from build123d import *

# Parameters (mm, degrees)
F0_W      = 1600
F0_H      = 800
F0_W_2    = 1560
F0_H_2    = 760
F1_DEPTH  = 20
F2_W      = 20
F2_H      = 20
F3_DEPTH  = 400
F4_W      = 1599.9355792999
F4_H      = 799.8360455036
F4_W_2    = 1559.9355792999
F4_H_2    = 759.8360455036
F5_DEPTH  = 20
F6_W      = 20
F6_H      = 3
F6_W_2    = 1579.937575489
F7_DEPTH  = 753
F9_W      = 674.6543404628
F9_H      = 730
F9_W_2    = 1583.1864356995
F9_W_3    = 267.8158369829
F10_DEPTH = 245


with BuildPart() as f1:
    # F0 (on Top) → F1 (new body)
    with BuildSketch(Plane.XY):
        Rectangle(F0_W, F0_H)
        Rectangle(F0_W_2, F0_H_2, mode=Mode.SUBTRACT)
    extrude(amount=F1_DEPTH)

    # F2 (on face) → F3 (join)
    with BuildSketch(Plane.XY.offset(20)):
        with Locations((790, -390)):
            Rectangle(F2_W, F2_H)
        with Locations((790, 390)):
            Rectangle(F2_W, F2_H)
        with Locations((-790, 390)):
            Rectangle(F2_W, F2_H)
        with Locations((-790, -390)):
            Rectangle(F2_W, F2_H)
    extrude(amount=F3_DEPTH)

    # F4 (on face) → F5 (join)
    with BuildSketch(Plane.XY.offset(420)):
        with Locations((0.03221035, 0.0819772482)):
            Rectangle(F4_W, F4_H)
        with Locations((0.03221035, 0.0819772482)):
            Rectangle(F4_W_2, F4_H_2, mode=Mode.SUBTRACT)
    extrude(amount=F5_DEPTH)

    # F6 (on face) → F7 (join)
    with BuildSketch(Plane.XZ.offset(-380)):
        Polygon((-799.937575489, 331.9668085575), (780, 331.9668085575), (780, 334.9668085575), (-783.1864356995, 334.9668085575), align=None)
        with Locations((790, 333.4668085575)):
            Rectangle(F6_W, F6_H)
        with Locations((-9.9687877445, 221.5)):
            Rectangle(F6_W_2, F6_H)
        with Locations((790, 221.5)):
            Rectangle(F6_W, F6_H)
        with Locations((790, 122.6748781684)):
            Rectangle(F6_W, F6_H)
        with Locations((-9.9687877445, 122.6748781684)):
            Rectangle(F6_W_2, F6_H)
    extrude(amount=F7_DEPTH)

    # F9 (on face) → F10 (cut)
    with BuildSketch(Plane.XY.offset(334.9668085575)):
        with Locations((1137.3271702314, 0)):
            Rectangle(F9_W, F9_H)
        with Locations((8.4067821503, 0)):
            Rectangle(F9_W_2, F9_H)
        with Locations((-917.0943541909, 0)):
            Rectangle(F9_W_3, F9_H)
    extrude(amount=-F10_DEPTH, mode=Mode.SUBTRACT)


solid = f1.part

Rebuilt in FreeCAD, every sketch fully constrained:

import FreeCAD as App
import Part
import Sketcher
from FreeCAD import Vector
Q = App.Units.Quantity

doc = App.newDocument("Part")
params = doc.addObject("Spreadsheet::Sheet", "Params")
for row, (alias, value) in enumerate([
    ("sketch1_width", "1600 mm"),
    ("sketch1_width2", "1560 mm"),
    ("sketch1_height", "800 mm"),
    ("sketch1_height2", "760 mm"),
    ("pad1_length", "20 mm"),
    ("sketch2_width", "20 mm"),
    ("pad2_length", "400 mm"),
    ("pad3_length", "20 mm"),
    ("sketch4_height", "3 mm"),
    ("pad4_length", "753 mm"),
    ("sketch5_height", "730 mm"),
    ("pocket1_length", "245 mm"),
], start=1):
    params.set(f"A{row}", alias)
    params.set(f"B{row}", "=" + value)
    params.setAlias(f"B{row}", alias)

body = doc.addObject("PartDesign::Body", "Body")
body.AllowCompound = True

sketch1 = body.newObject("Sketcher::SketchObject", "Sketch")
sketch1.AttachmentSupport = (doc.getObject("XY_Plane"), [""])
sketch1.MapMode = "FlatFace"
sketch1.addGeometry([
    Part.LineSegment(Vector(-800, 400, 0), Vector(-800, -400, 0)),
    Part.LineSegment(Vector(-800, -400, 0), Vector(800, -400, 0)),
    Part.LineSegment(Vector(800, -400, 0), Vector(800, 400, 0)),
    Part.LineSegment(Vector(800, 400, 0), Vector(-800, 400, 0)),
    Part.LineSegment(Vector(780, -380, 0), Vector(-780, -380, 0)),
    Part.LineSegment(Vector(-780, -380, 0), Vector(-780, 380, 0)),
    Part.LineSegment(Vector(-780, 380, 0), Vector(780, 380, 0)),
    Part.LineSegment(Vector(780, 380, 0), Vector(780, -380, 0)),
], False)
sketch1.addConstraint([
    Sketcher.Constraint("Coincident", 0, 2, 1, 1),
    Sketcher.Constraint("Coincident", 1, 2, 2, 1),
    Sketcher.Constraint("Coincident", 2, 2, 3, 1),
    Sketcher.Constraint("Coincident", 3, 2, 0, 1),
    Sketcher.Constraint("Coincident", 4, 2, 5, 1),
    Sketcher.Constraint("Coincident", 5, 2, 6, 1),
    Sketcher.Constraint("Coincident", 6, 2, 7, 1),
    Sketcher.Constraint("Coincident", 7, 2, 4, 1),
    Sketcher.Constraint("Vertical", 0),
    Sketcher.Constraint("Horizontal", 1),
    Sketcher.Constraint("Vertical", 2),
    Sketcher.Constraint("Horizontal", 3),
    Sketcher.Constraint("Horizontal", 4),
    Sketcher.Constraint("Vertical", 5),
    Sketcher.Constraint("Horizontal", 6),
    Sketcher.Constraint("Vertical", 7),
    Sketcher.Constraint("Symmetric", 0, 2, 2, 2, -1, 1),
    Sketcher.Constraint("Symmetric", 4, 2, 6, 2, -1, 1),
    Sketcher.Constraint("DistanceX", 1, 1, 1, 2, Q("1600 mm")),
    Sketcher.Constraint("DistanceX", 4, 2, 4, 1, Q("1560 mm")),
    Sketcher.Constraint("DistanceY", 0, 2, 0, 1, Q("800 mm")),
    Sketcher.Constraint("DistanceY", 5, 1, 5, 2, Q("760 mm")),
])
sketch1.setExpression("Constraints[18]", "Params.sketch1_width")
sketch1.setExpression("Constraints[19]", "Params.sketch1_width2")
sketch1.setExpression("Constraints[20]", "Params.sketch1_height")
sketch1.setExpression("Constraints[21]", "Params.sketch1_height2")
pad1 = body.newObject("PartDesign::Pad", "Pad")
pad1.Profile = sketch1
pad1.setExpression("Length", "Params.pad1_length")

sketch2 = body.newObject("Sketcher::SketchObject", "Sketch001")
sketch2.AttachmentSupport = (doc.getObject("XY_Plane"), [""])
sketch2.MapMode = "FlatFace"
sketch2.AttachmentOffset = App.Placement(Vector(0, 0, 20), App.Rotation())
sketch2.addGeometry([
    Part.LineSegment(Vector(780, -380, 0), Vector(780, -400, 0)),
    Part.LineSegment(Vector(780, -400, 0), Vector(800, -400, 0)),
    Part.LineSegment(Vector(800, -400, 0), Vector(800, -380, 0)),
    Part.LineSegment(Vector(800, -380, 0), Vector(780, -380, 0)),
    Part.LineSegment(Vector(780, 400, 0), Vector(780, 380, 0)),
    Part.LineSegment(Vector(780, 380, 0), Vector(800, 380, 0)),
    Part.LineSegment(Vector(800, 380, 0), Vector(800, 400, 0)),
    Part.LineSegment(Vector(800, 400, 0), Vector(780, 400, 0)),
    Part.LineSegment(Vector(-800, 400, 0), Vector(-800, 380, 0)),
    Part.LineSegment(Vector(-800, 380, 0), Vector(-780, 380, 0)),
    Part.LineSegment(Vector(-780, 380, 0), Vector(-780, 400, 0)),
    Part.LineSegment(Vector(-780, 400, 0), Vector(-800, 400, 0)),
    Part.LineSegment(Vector(-800, -380, 0), Vector(-800, -400, 0)),
    Part.LineSegment(Vector(-800, -400, 0), Vector(-780, -400, 0)),
    Part.LineSegment(Vector(-780, -400, 0), Vector(-780, -380, 0)),
    Part.LineSegment(Vector(-780, -380, 0), Vector(-800, -380, 0)),
], False)
sketch2.addConstraint([
    Sketcher.Constraint("Coincident", 0, 2, 1, 1),
    Sketcher.Constraint("Coincident", 1, 2, 2, 1),
    Sketcher.Constraint("Coincident", 2, 2, 3, 1),
    Sketcher.Constraint("Coincident", 3, 2, 0, 1),
    Sketcher.Constraint("Coincident", 4, 2, 5, 1),
    Sketcher.Constraint("Coincident", 5, 2, 6, 1),
    Sketcher.Constraint("Coincident", 6, 2, 7, 1),
    Sketcher.Constraint("Coincident", 7, 2, 4, 1),
    Sketcher.Constraint("Coincident", 8, 2, 9, 1),
    Sketcher.Constraint("Coincident", 9, 2, 10, 1),
    Sketcher.Constraint("Coincident", 10, 2, 11, 1),
    Sketcher.Constraint("Coincident", 11, 2, 8, 1),
    Sketcher.Constraint("Coincident", 12, 2, 13, 1),
    Sketcher.Constraint("Coincident", 13, 2, 14, 1),
    Sketcher.Constraint("Coincident", 14, 2, 15, 1),
    Sketcher.Constraint("Coincident", 15, 2, 12, 1),
    Sketcher.Constraint("Vertical", 0),
    Sketcher.Constraint("Horizontal", 1),
    Sketcher.Constraint("Vertical", 2),
    Sketcher.Constraint("Horizontal", 3),
    Sketcher.Constraint("Vertical", 4),
    Sketcher.Constraint("Horizontal", 5),
    Sketcher.Constraint("Vertical", 6),
    Sketcher.Constraint("Horizontal", 7),
    Sketcher.Constraint("Vertical", 8),
    Sketcher.Constraint("Horizontal", 9),
    Sketcher.Constraint("Vertical", 10),
    Sketcher.Constraint("Horizontal", 11),
    Sketcher.Constraint("Vertical", 12),
    Sketcher.Constraint("Horizontal", 13),
    Sketcher.Constraint("Vertical", 14),
    Sketcher.Constraint("Horizontal", 15),
    Sketcher.Constraint("Symmetric", 2, 2, 8, 2, -1, 1),
    Sketcher.Constraint("Symmetric", 0, 2, 10, 2, -1, 1),
    Sketcher.Constraint("Symmetric", 6, 2, 12, 2, -1, 1),
    Sketcher.Constraint("Symmetric", 4, 2, 14, 2, -1, 1),
    Sketcher.Constraint("Symmetric", 5, 2, 8, 2, -2),
    Sketcher.Constraint("Symmetric", 7, 2, 10, 2, -2),
    Sketcher.Constraint("Equal", 15, 0),
    Sketcher.Constraint("DistanceX", 1, 1, 1, 2, Q("20 mm")),
    Sketcher.Constraint("DistanceX", -1, 1, 0, 2, Q("780 mm")),
    Sketcher.Constraint("DistanceY", 0, 2, -1, 1, Q("400 mm")),
])
sketch2.setExpression("Constraints[39]", "Params.sketch2_width")
pad2 = body.newObject("PartDesign::Pad", "Pad001")
pad2.Profile = sketch2
pad2.setExpression("Length", "Params.pad2_length")

sketch3 = body.newObject("Sketcher::SketchObject", "Sketch002")
sketch3.AttachmentSupport = (doc.getObject("XY_Plane"), [""])
sketch3.MapMode = "FlatFace"
sketch3.AttachmentOffset = App.Placement(Vector(0, 0, 420), App.Rotation())
sketch3.addGeometry([
    Part.LineSegment(Vector(-800, 400, 0), Vector(-800, -400, 0)),
    Part.LineSegment(Vector(-800, -400, 0), Vector(800, -400, 0)),
    Part.LineSegment(Vector(800, -400, 0), Vector(800, 400, 0)),
    Part.LineSegment(Vector(800, 400, 0), Vector(-800, 400, 0)),
    Part.LineSegment(Vector(780, -380, 0), Vector(-780, -380, 0)),
    Part.LineSegment(Vector(-780, -380, 0), Vector(-780, 380, 0)),
    Part.LineSegment(Vector(-780, 380, 0), Vector(780, 380, 0)),
    Part.LineSegment(Vector(780, 380, 0), Vector(780, -380, 0)),
], False)
sketch3.addConstraint([
    Sketcher.Constraint("Coincident", 0, 2, 1, 1),
    Sketcher.Constraint("Coincident", 1, 2, 2, 1),
    Sketcher.Constraint("Coincident", 2, 2, 3, 1),
    Sketcher.Constraint("Coincident", 3, 2, 0, 1),
    Sketcher.Constraint("Coincident", 4, 2, 5, 1),
    Sketcher.Constraint("Coincident", 5, 2, 6, 1),
    Sketcher.Constraint("Coincident", 6, 2, 7, 1),
    Sketcher.Constraint("Coincident", 7, 2, 4, 1),
    Sketcher.Constraint("Vertical", 0),
    Sketcher.Constraint("Horizontal", 1),
    Sketcher.Constraint("Vertical", 2),
    Sketcher.Constraint("Horizontal", 3),
    Sketcher.Constraint("Horizontal", 4),
    Sketcher.Constraint("Vertical", 5),
    Sketcher.Constraint("Horizontal", 6),
    Sketcher.Constraint("Vertical", 7),
    Sketcher.Constraint("DistanceX", -1, 1, 1, 2, Q("800 mm")),
    Sketcher.Constraint("DistanceY", -1, 1, 2, 2, Q("400 mm")),
    Sketcher.Constraint("DistanceY", -1, 1, 5, 2, Q("380 mm")),
    Sketcher.Constraint("DistanceX", -1, 1, 6, 2, Q("780 mm")),
    Sketcher.Constraint("DistanceX", 0, 2, 4, 2, Q("20 mm")),
    Sketcher.Constraint("DistanceY", 0, 2, 4, 2, Q("20 mm")),
    Sketcher.Constraint("DistanceX", 1, 1, 1, 2, Q("1599.935579 mm")),
    Sketcher.Constraint("DistanceY", 0, 2, 0, 1, Q("799.836046 mm")),
])
pad3 = body.newObject("PartDesign::Pad", "Pad002")
pad3.Profile = sketch3
pad3.setExpression("Length", "Params.pad3_length")

sketch4 = body.newObject("Sketcher::SketchObject", "Sketch003")
sketch4.AttachmentSupport = (doc.getObject("XZ_Plane"), [""])
sketch4.MapMode = "FlatFace"
sketch4.AttachmentOffset = App.Placement(Vector(0, 0, -380), App.Rotation())
sketch4.addGeometry([
    Part.LineSegment(Vector(-799.9, 332, 0), Vector(800, 332, 0)),
    Part.LineSegment(Vector(800, 332, 0), Vector(800, 335, 0)),
    Part.LineSegment(Vector(800, 335, 0), Vector(-783.2, 335, 0)),
    Part.LineSegment(Vector(-783.2, 335, 0), Vector(-799.9, 332, 0)),
    Part.LineSegment(Vector(-799.9, 223, 0), Vector(-799.9, 220, 0)),
    Part.LineSegment(Vector(-799.9, 220, 0), Vector(800, 220, 0)),
    Part.LineSegment(Vector(800, 220, 0), Vector(800, 223, 0)),
    Part.LineSegment(Vector(800, 223, 0), Vector(-799.9, 223, 0)),
    Part.LineSegment(Vector(800, 121.2, 0), Vector(800, 124.2, 0)),
    Part.LineSegment(Vector(800, 124.2, 0), Vector(-799.9, 124.2, 0)),
    Part.LineSegment(Vector(-799.9, 124.2, 0), Vector(-799.9, 121.2, 0)),
    Part.LineSegment(Vector(-799.9, 121.2, 0), Vector(800, 121.2, 0)),
], False)
sketch4.addConstraint([
    Sketcher.Constraint("Coincident", 0, 2, 1, 1),
    Sketcher.Constraint("Coincident", 1, 2, 2, 1),
    Sketcher.Constraint("Coincident", 2, 2, 3, 1),
    Sketcher.Constraint("Coincident", 3, 2, 0, 1),
    Sketcher.Constraint("Coincident", 4, 2, 5, 1),
    Sketcher.Constraint("Coincident", 5, 2, 6, 1),
    Sketcher.Constraint("Coincident", 6, 2, 7, 1),
    Sketcher.Constraint("Coincident", 7, 2, 4, 1),
    Sketcher.Constraint("Coincident", 8, 2, 9, 1),
    Sketcher.Constraint("Coincident", 9, 2, 10, 1),
    Sketcher.Constraint("Coincident", 10, 2, 11, 1),
    Sketcher.Constraint("Coincident", 11, 2, 8, 1),
    Sketcher.Constraint("Horizontal", 0),
    Sketcher.Constraint("Vertical", 1),
    Sketcher.Constraint("Horizontal", 2),
    Sketcher.Constraint("Vertical", 4),
    Sketcher.Constraint("Horizontal", 5),
    Sketcher.Constraint("Vertical", 6),
    Sketcher.Constraint("Horizontal", 7),
    Sketcher.Constraint("Vertical", 8),
    Sketcher.Constraint("Horizontal", 9),
    Sketcher.Constraint("Vertical", 10),
    Sketcher.Constraint("Horizontal", 11),
    Sketcher.Constraint("Vertical", 3, 2, 4, 2),
    Sketcher.Constraint("Vertical", 1, 2, 5, 2),
    Sketcher.Constraint("Vertical", 6, 2, 8, 2),
    Sketcher.Constraint("Vertical", 7, 2, 9, 2),
    Sketcher.Constraint("Equal", 1, 4),
    Sketcher.Constraint("Equal", 6, 8),
    Sketcher.Constraint("DistanceY", 1, 1, 1, 2, Q("3 mm")),
    Sketcher.Constraint("DistanceX", -1, 1, 0, 2, Q("800 mm")),
    Sketcher.Constraint("DistanceY", -1, 1, 4, 2, Q("220 mm")),
    Sketcher.Constraint("Distance", 3, Q("17.017658 mm")),
    Sketcher.Constraint("DistanceX", 0, 1, 0, 2, Q("1599.937575 mm")),
    Sketcher.Constraint("DistanceY", -1, 1, 0, 2, Q("331.966809 mm")),
    Sketcher.Constraint("DistanceY", -1, 1, 8, 2, Q("124.174878 mm")),
])
sketch4.setExpression("Constraints[29]", "Params.sketch4_height")
pad4 = body.newObject("PartDesign::Pad", "Pad003")
pad4.Profile = sketch4
pad4.setExpression("Length", "Params.pad4_length")

sketch5 = body.newObject("Sketcher::SketchObject", "Sketch004")
sketch5.AttachmentSupport = (doc.getObject("XY_Plane"), [""])
sketch5.MapMode = "FlatFace"
sketch5.AttachmentOffset = App.Placement(Vector(0, 0, 334.966809), App.Rotation())
sketch5.addGeometry([
    Part.LineSegment(Vector(1475, -365, 0), Vector(1475, 365, 0)),
    Part.LineSegment(Vector(1475, 365, 0), Vector(-1051, 365, 0)),
    Part.LineSegment(Vector(-1051, 365, 0), Vector(-1051, -365, 0)),
    Part.LineSegment(Vector(-1051, -365, 0), Vector(1475, -365, 0)),
], False)
sketch5.addConstraint([
    Sketcher.Constraint("Coincident", 0, 2, 1, 1),
    Sketcher.Constraint("Coincident", 1, 2, 2, 1),
    Sketcher.Constraint("Coincident", 2, 2, 3, 1),
    Sketcher.Constraint("Coincident", 3, 2, 0, 1),
    Sketcher.Constraint("Vertical", 0),
    Sketcher.Constraint("Horizontal", 1),
    Sketcher.Constraint("Vertical", 2),
    Sketcher.Constraint("Horizontal", 3),
    Sketcher.Constraint("DistanceY", 0, 1, 0, 2, Q("730 mm")),
    Sketcher.Constraint("DistanceY", -1, 1, 0, 2, Q("365 mm")),
    Sketcher.Constraint("DistanceX", 1, 2, 1, 1, Q("2525.656613 mm")),
    Sketcher.Constraint("DistanceX", -1, 1, 0, 2, Q("1474.65434 mm")),
])
sketch5.setExpression("Constraints[8]", "Params.sketch5_height")
pocket1 = body.newObject("PartDesign::Pocket", "Pocket")
pocket1.Profile = sketch5
pocket1.setExpression("Length", "Params.pocket1_length")

doc.recompute()
